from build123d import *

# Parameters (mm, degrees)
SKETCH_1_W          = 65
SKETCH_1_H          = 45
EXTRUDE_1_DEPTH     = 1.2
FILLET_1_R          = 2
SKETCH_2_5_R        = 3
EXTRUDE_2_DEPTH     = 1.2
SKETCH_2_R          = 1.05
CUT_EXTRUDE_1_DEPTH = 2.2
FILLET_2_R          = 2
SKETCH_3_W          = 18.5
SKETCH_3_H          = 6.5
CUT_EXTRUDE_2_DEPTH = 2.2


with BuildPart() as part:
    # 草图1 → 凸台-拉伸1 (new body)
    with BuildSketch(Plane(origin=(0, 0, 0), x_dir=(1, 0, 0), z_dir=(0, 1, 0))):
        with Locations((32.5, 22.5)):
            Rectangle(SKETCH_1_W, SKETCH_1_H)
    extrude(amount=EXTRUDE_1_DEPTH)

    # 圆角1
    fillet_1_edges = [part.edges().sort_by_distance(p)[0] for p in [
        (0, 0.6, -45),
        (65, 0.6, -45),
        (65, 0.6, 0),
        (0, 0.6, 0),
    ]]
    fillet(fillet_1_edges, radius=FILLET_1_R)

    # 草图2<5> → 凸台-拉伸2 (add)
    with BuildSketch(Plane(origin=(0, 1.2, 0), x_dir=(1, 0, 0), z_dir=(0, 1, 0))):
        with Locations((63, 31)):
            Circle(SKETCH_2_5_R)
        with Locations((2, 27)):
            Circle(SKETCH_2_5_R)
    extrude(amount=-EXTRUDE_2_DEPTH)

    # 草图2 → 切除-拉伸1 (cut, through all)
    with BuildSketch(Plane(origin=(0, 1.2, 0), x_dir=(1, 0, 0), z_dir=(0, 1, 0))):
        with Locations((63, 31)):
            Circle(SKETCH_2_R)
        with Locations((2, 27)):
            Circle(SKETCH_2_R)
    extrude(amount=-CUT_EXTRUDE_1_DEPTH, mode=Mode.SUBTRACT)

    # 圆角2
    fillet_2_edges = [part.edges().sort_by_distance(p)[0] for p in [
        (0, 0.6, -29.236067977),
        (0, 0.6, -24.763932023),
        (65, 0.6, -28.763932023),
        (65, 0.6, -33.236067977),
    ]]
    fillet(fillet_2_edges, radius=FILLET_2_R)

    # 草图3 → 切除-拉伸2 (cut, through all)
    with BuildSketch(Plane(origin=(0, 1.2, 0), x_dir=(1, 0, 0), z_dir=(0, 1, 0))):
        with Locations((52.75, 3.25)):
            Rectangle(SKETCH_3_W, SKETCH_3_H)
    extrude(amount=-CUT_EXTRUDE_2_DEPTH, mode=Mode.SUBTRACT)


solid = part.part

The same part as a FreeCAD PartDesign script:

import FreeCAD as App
import Part
import Sketcher
from FreeCAD import Vector
Q = App.Units.Quantity


def edges_at(feature, points):
    """Names of the edges that pass closest to the given points."""
    edges = feature.Shape.Edges
    near = lambda p: min(range(len(edges)), key=lambda i: edges[i].distToShape(Part.Vertex(*p))[0])
    return sorted({f"Edge{near(p) + 1}" for p in points})

doc = App.newDocument("Part")
body = doc.addObject("PartDesign::Body", "Body")

# Sketch on XZ plane
sketch1 = doc.addObject("Sketcher::SketchObject", "Sketch")
body.addObject(sketch1)
sketch1.AttachmentSupport = (doc.XZ_Plane, [""])
sketch1.MapMode = "FlatFace"
sketch1.addGeometry(Part.LineSegment(Vector(0, -45, 0), Vector(0, 0, 0)), False)
sketch1.addGeometry(Part.LineSegment(Vector(0, 0, 0), Vector(65, 0, 0)), False)
sketch1.addGeometry(Part.LineSegment(Vector(65, 0, 0), Vector(65, -45, 0)), False)
sketch1.addGeometry(Part.LineSegment(Vector(65, -45, 0), Vector(0, -45, 0)), False)
sketch1.addConstraint(Sketcher.Constraint("Coincident", 0, 2, 1, 1))
sketch1.addConstraint(Sketcher.Constraint("Coincident", 1, 2, 2, 1))
sketch1.addConstraint(Sketcher.Constraint("Coincident", 2, 2, 3, 1))
sketch1.addConstraint(Sketcher.Constraint("Coincident", 3, 2, 0, 1))
sketch1.addConstraint(Sketcher.Constraint("Vertical", 0))
sketch1.addConstraint(Sketcher.Constraint("Horizontal", 1))
sketch1.addConstraint(Sketcher.Constraint("Vertical", 2))
sketch1.addConstraint(Sketcher.Constraint("Horizontal", 3))
sketch1.addConstraint(Sketcher.Constraint("Coincident", 0, 2, -1, 1))
sketch1.addConstraint(Sketcher.Constraint("DistanceX", 1, 1, 1, 2, Q("65 mm")))
sketch1.addConstraint(Sketcher.Constraint("DistanceY", 0, 1, 0, 2, Q("45 mm")))
pad1 = doc.addObject("PartDesign::Pad", "Pad")
body.addObject(pad1)
pad1.Profile = sketch1
pad1.Length = 1.2
pad1.Reversed = True
doc.recompute()

fillet = doc.addObject("PartDesign::Fillet", "Fillet")
body.addObject(fillet)
fillet.Base = (pad1, edges_at(pad1, [
    (0, 0.6, -45),
    (65, 0.6, -45),
    (65, 0.6, 0),
    (0, 0.6, 0),
]))
fillet.Radius = 2

# Sketch on XZ plane
sketch2 = doc.addObject("Sketcher::SketchObject", "Sketch001")
body.addObject(sketch2)
sketch2.AttachmentSupport = (doc.XZ_Plane, [""])
sketch2.MapMode = "FlatFace"
sketch2.AttachmentOffset = App.Placement(Vector(0, 0, -1.2), App.Rotation())
sketch2.addGeometry(Part.Circle(Vector(63, -31, 0), Vector(0, 0, 1), 3), False)
sketch2.addGeometry(Part.Circle(Vector(2, -27, 0), Vector(0, 0, 1), 3), False)
sketch2.addConstraint(Sketcher.Constraint("Equal", 0, 1))
sketch2.addConstraint(Sketcher.Constraint("Diameter", 0, Q("6 mm")))
sketch2.addConstraint(Sketcher.Constraint("DistanceX", -1, 1, 0, 3, Q("63 mm")))
sketch2.addConstraint(Sketcher.Constraint("DistanceY", 0, 3, -1, 1, Q("31 mm")))
sketch2.addConstraint(Sketcher.Constraint("DistanceX", -1, 1, 1, 3, Q("2 mm")))
sketch2.addConstraint(Sketcher.Constraint("DistanceY", 1, 3, -1, 1, Q("27 mm")))
pad2 = doc.addObject("PartDesign::Pad", "Pad001")
body.addObject(pad2)
pad2.Profile = sketch2
pad2.Length = 1.2

# Sketch on XZ plane
sketch3 = doc.addObject("Sketcher::SketchObject", "Sketch002")
body.addObject(sketch3)
sketch3.AttachmentSupport = (doc.XZ_Plane, [""])
sketch3.MapMode = "FlatFace"
sketch3.AttachmentOffset = App.Placement(Vector(0, 0, -1.2), App.Rotation())
sketch3.addGeometry(Part.Circle(Vector(63, -31, 0), Vector(0, 0, 1), 1.05), False)
sketch3.addGeometry(Part.Circle(Vector(2, -27, 0), Vector(0, 0, 1), 1.05), False)
sketch3.addConstraint(Sketcher.Constraint("Equal", 0, 1))
sketch3.addConstraint(Sketcher.Constraint("Diameter", 0, Q("2.1 mm")))
sketch3.addConstraint(Sketcher.Constraint("DistanceX", -1, 1, 0, 3, Q("63 mm")))
sketch3.addConstraint(Sketcher.Constraint("DistanceY", 0, 3, -1, 1, Q("31 mm")))
sketch3.addConstraint(Sketcher.Constraint("DistanceX", -1, 1, 1, 3, Q("2 mm")))
sketch3.addConstraint(Sketcher.Constraint("DistanceY", 1, 3, -1, 1, Q("27 mm")))
pocket1 = doc.addObject("PartDesign::Pocket", "Pocket")
body.addObject(pocket1)
pocket1.Profile = sketch3
pocket1.Type = "ThroughAll"
pocket1.Reversed = True
doc.recompute()

fillet2 = doc.addObject("PartDesign::Fillet", "Fillet001")
body.addObject(fillet2)
fillet2.Base = (pocket1, edges_at(pocket1, [
    (0, 0.6, -29.236),
    (0, 0.6, -24.764),
    (65, 0.6, -28.764),
    (65, 0.6, -33.236),
]))
fillet2.Radius = 2

# Sketch on XZ plane
sketch4 = doc.addObject("Sketcher::SketchObject", "Sketch003")
body.addObject(sketch4)
sketch4.AttachmentSupport = (doc.XZ_Plane, [""])
sketch4.MapMode = "FlatFace"
sketch4.AttachmentOffset = App.Placement(Vector(0, 0, -1.2), App.Rotation())
sketch4.addGeometry(Part.LineSegment(Vector(43.5, -6.5, 0), Vector(43.5, 0, 0)), False)
sketch4.addGeometry(Part.LineSegment(Vector(43.5, 0, 0), Vector(62, 0, 0)), False)
sketch4.addGeometry(Part.LineSegment(Vector(62, 0, 0), Vector(62, -6.5, 0)), False)
sketch4.addGeometry(Part.LineSegment(Vector(62, -6.5, 0), Vector(43.5, -6.5, 0)), False)
sketch4.addConstraint(Sketcher.Constraint("Coincident", 0, 2, 1, 1))
sketch4.addConstraint(Sketcher.Constraint("Coincident", 1, 2, 2, 1))
sketch4.addConstraint(Sketcher.Constraint("Coincident", 2, 2, 3, 1))
sketch4.addConstraint(Sketcher.Constraint("Coincident", 3, 2, 0, 1))
sketch4.addConstraint(Sketcher.Constraint("Vertical", 0))
sketch4.addConstraint(Sketcher.Constraint("Horizontal", 1))
sketch4.addConstraint(Sketcher.Constraint("Vertical", 2))
sketch4.addConstraint(Sketcher.Constraint("Horizontal", 3))
sketch4.addConstraint(Sketcher.Constraint("PointOnObject", 0, 2, -1))
sketch4.addConstraint(Sketcher.Constraint("DistanceX", 1, 1, 1, 2, Q("18.5 mm")))
sketch4.addConstraint(Sketcher.Constraint("DistanceY", 0, 1, 0, 2, Q("6.5 mm")))
sketch4.addConstraint(Sketcher.Constraint("DistanceX", -1, 1, 1, 2, Q("62 mm")))
pocket2 = doc.addObject("PartDesign::Pocket", "Pocket001")
body.addObject(pocket2)
pocket2.Profile = sketch4
pocket2.Type = "ThroughAll"
pocket2.Reversed = True

doc.recompute()
